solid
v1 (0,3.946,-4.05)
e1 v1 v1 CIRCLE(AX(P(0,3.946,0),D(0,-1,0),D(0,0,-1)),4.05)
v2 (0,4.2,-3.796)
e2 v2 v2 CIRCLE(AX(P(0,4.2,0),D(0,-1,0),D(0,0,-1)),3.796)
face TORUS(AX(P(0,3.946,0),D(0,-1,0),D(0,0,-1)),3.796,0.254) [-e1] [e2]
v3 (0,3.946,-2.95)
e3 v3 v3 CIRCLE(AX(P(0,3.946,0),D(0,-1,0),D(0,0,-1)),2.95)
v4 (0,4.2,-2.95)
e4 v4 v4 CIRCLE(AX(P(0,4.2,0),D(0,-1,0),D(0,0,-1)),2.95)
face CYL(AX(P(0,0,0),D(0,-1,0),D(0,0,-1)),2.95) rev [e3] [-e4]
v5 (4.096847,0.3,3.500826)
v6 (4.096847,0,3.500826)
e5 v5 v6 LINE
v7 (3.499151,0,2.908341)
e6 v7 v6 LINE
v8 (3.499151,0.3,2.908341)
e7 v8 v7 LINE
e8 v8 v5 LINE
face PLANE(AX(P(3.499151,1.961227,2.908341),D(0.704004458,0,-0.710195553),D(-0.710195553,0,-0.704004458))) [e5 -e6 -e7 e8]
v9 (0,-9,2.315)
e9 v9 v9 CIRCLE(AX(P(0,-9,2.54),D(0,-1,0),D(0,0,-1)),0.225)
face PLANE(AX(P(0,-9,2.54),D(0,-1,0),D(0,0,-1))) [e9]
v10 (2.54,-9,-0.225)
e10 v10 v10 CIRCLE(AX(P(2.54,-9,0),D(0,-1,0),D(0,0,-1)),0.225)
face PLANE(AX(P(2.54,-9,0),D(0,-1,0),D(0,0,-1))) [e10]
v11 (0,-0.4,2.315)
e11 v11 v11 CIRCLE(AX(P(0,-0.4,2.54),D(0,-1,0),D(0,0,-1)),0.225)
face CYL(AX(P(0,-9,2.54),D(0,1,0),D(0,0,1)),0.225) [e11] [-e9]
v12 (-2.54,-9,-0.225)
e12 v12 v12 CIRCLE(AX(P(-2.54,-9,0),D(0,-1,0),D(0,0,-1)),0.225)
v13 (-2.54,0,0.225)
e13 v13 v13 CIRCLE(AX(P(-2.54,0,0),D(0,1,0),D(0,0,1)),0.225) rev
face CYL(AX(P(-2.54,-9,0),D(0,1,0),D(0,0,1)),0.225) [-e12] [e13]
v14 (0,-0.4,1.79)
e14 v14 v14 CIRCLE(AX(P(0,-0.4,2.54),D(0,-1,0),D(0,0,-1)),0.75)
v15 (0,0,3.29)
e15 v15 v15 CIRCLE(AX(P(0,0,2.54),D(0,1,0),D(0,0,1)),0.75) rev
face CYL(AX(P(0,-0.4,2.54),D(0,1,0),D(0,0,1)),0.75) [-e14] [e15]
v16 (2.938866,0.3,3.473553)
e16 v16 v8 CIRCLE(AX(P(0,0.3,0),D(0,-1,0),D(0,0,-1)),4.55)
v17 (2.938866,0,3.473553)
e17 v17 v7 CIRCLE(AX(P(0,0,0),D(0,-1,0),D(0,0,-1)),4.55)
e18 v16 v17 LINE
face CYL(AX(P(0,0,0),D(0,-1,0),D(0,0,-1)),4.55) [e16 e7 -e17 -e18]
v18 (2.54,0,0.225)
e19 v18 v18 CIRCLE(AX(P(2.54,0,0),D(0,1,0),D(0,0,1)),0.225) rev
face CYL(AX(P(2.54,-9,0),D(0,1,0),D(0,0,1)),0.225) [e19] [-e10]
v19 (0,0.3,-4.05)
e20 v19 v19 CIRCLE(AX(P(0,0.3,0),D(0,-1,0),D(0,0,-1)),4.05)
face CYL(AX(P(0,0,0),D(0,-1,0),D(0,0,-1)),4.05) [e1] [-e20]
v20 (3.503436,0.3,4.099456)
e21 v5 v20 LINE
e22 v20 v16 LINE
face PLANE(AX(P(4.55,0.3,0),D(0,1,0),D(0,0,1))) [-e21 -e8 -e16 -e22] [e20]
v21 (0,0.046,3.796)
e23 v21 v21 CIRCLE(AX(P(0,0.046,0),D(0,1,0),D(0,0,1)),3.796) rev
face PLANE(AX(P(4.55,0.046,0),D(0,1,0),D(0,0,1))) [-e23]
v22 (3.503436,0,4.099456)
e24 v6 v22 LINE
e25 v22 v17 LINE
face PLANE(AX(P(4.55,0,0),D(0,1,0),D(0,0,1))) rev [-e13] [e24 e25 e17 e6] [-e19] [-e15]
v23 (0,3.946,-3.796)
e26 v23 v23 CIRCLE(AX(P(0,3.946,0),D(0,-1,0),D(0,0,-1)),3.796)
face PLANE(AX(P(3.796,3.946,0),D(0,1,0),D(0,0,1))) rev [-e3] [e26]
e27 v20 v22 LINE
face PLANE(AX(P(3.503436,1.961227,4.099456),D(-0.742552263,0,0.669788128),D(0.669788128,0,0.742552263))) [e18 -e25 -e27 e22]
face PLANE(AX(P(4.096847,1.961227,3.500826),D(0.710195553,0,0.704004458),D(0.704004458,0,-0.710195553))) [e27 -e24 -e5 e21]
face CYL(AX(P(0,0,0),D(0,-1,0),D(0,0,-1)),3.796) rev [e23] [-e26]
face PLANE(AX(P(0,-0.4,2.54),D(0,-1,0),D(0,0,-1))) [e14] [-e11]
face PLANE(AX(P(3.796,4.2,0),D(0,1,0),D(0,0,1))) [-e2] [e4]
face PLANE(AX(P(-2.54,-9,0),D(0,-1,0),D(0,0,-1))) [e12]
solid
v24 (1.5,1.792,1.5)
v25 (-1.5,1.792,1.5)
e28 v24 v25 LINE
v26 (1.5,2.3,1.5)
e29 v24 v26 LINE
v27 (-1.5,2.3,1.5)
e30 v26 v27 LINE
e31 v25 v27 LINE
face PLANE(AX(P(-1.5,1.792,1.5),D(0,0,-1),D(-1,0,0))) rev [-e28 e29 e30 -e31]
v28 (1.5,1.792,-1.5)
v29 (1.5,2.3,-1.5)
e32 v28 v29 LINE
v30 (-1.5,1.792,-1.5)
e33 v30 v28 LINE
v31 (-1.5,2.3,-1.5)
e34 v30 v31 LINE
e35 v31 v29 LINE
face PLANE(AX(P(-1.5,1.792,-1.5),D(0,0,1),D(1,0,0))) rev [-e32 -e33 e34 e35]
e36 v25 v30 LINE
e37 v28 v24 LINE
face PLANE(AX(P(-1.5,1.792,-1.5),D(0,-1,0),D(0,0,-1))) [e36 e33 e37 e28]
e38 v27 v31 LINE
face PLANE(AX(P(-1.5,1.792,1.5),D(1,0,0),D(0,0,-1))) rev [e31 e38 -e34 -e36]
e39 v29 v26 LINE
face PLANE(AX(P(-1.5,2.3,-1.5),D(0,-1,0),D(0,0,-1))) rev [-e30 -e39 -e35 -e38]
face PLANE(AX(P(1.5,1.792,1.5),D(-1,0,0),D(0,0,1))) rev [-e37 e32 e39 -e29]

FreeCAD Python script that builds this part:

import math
import FreeCAD as App
import Part
import Sketcher

V = App.Vector
Q = App.Units.Quantity

doc = App.newDocument("Part")
body = doc.addObject("PartDesign::Body", "Body")

# Sketch on XY plane
sketch1 = body.newObject("Sketcher::SketchObject", "Sketch")
sketch1.AttachmentSupport = (doc.getObject("XY_Plane"), [""])
sketch1.MapMode = "FlatFace"
sketch1.addGeometry([
    Part.LineSegment(V(4.55, 0, 0), V(4.55, 0.3, 0)),  # 0
    Part.LineSegment(V(4.55, 0.3, 0), V(4.05, 0.3, 0)),  # 1
    Part.LineSegment(V(4.05, 0.3, 0), V(4.05, 3.946, 0)),  # 2
    Part.ArcOfCircle(Part.Circle(V(3.796, 3.946, 0), V(0, 0, 1), 0.254), math.radians(0), math.radians(90)),  # 3
    Part.LineSegment(V(3.796, 4.2, 0), V(2.95, 4.2, 0)),  # 4
    Part.LineSegment(V(2.95, 4.2, 0), V(2.95, 3.946, 0)),  # 5
    Part.LineSegment(V(2.95, 3.946, 0), V(3.796, 3.946, 0)),  # 6
    Part.LineSegment(V(3.796, 3.946, 0), V(3.796, 0.046, 0)),  # 7
    Part.LineSegment(V(3.796, 0.046, 0), V(4.296, 0.046, 0)),  # 8
    Part.LineSegment(V(4.296, 0.046, 0), V(4.296, 0, 0)),  # 9
    Part.LineSegment(V(4.296, 0, 0), V(4.55, 0, 0)),  # 10
], False)
sketch1.addConstraint([
    Sketcher.Constraint("Coincident", 0, 2, 1, 1),
    Sketcher.Constraint("Coincident", 1, 2, 2, 1),
    Sketcher.Constraint("Tangent", 2, 2, 3, 1),
    Sketcher.Constraint("Tangent", 3, 2, 4, 1),
    Sketcher.Constraint("Coincident", 4, 2, 5, 1),
    Sketcher.Constraint("Coincident", 5, 2, 6, 1),
    Sketcher.Constraint("Coincident", 6, 2, 7, 1),
    Sketcher.Constraint("Coincident", 7, 2, 8, 1),
    Sketcher.Constraint("Coincident", 8, 2, 9, 1),
    Sketcher.Constraint("Coincident", 9, 2, 10, 1),
    Sketcher.Constraint("Coincident", 10, 2, 0, 1),
    Sketcher.Constraint("Vertical", 0),
    Sketcher.Constraint("Horizontal", 1),
    Sketcher.Constraint("Vertical", 2),
    Sketcher.Constraint("Horizontal", 4),
    Sketcher.Constraint("Vertical", 5),
    Sketcher.Constraint("Horizontal", 6),
    Sketcher.Constraint("Vertical", 7),
    Sketcher.Constraint("Horizontal", 8),
    Sketcher.Constraint("Vertical", 9),
    Sketcher.Constraint("Horizontal", 10),
    Sketcher.Constraint("Coincident", 6, 2, 3, 3),
    Sketcher.Constraint("PointOnObject", 9, 2, -1),
    Sketcher.Constraint("Equal", 1, 8),
    Sketcher.Constraint("DistanceX", 1, 2, 1, 1, Q("0.5 mm")),
    Sketcher.Constraint("DistanceY", 0, 1, 0, 2, Q("0.3 mm")),
    Sketcher.Constraint("DistanceY", 7, 2, 7, 1, Q("3.9 mm")),
    Sketcher.Constraint("Radius", 3, Q("0.254 mm")),
    Sketcher.Constraint("DistanceY", -1, 1, 3, 2, Q("4.2 mm")),
    Sketcher.Constraint("DistanceX", 4, 2, 2, 2, Q("1.1 mm")),
    Sketcher.Constraint("DistanceX", -1, 1, 0, 2, Q("4.55 mm")),
])
revolution = body.newObject("PartDesign::Revolution", "Revolution")
revolution.Profile = sketch1
revolution.ReferenceAxis = (sketch1, ["V_Axis"])
revolution.Angle = 360

# Sketch on XZ plane
sketch2 = body.newObject("Sketcher::SketchObject", "Sketch001")
sketch2.AttachmentSupport = (doc.getObject("XZ_Plane"), [""])
sketch2.MapMode = "FlatFace"
sketch2.addGeometry(Part.Circle(V(0, 0, 0), V(0, 0, 1), 4.5), False)
sketch2.addConstraint([
    Sketcher.Constraint("Coincident", 0, 3, -1, 1),
    Sketcher.Constraint("Diameter", 0, Q("9.1 mm")),
])
pad1 = body.newObject("PartDesign::Pad", "Pad")
pad1.Profile = sketch2
pad1.Length = 0.046
pad1.Reversed = True

# Sketch on XZ plane
sketch3 = body.newObject("Sketcher::SketchObject", "Sketch002")
sketch3.AttachmentSupport = (doc.getObject("XZ_Plane"), [""])
sketch3.MapMode = "FlatFace"
sketch3.addGeometry([
    Part.LineSegment(V(2.9, 3.5, 0), V(3.5, 2.9, 0)),
    Part.LineSegment(V(3.5, 2.9, 0), V(4.1, 3.5, 0)),
    Part.LineSegment(V(4.1, 3.5, 0), V(3.5, 4.1, 0)),
    Part.LineSegment(V(3.5, 4.1, 0), V(2.9, 3.5, 0)),
], False)
sketch3.addConstraint([
    Sketcher.Constraint("Coincident", 0, 2, 1, 1),
    Sketcher.Constraint("Coincident", 1, 2, 2, 1),
    Sketcher.Constraint("Coincident", 2, 2, 3, 1),
    Sketcher.Constraint("Coincident", 3, 2, 0, 1),
    Sketcher.Constraint("Perpendicular", 0, 1),
    Sketcher.Constraint("Perpendicular", 1, 2),
    Sketcher.Constraint("Equal", 2, 3),
    Sketcher.Constraint("Distance", 2, Q("0.842908 mm")),
    Sketcher.Constraint("DistanceX", -1, 1, 0, 2, Q("3.499151 mm")),
    Sketcher.Constraint("DistanceY", -1, 1, 0, 2, Q("2.908341 mm")),
    Sketcher.Constraint("DistanceX", 2, 2, 1, 2, Q("0.593411 mm")),
    Sketcher.Constraint("DistanceY", 0, 2, 3, 2, Q("0.565212 mm")),
])
pad2 = body.newObject("PartDesign::Pad", "Pad001")
pad2.Profile = sketch3
pad2.Length = 0.3
pad2.Reversed = True

# Sketch on XZ plane
sketch4 = body.newObject("Sketcher::SketchObject", "Sketch003")
sketch4.AttachmentSupport = (doc.getObject("XZ_Plane"), [""])
sketch4.MapMode = "FlatFace"
sketch4.addGeometry([
    Part.Circle(V(-2.54, 0, 0), V(0, 0, 1), 0.23),
    Part.Circle(V(2.54, 0, 0), V(0, 0, 1), 0.23),
    Part.Circle(V(0, 2.54, 0), V(0, 0, 1), 0.23),
], False)
sketch4.addConstraint([
    Sketcher.Constraint("Equal", 0, 1),
    Sketcher.Constraint("Equal", 1, 2),
    Sketcher.Constraint("Symmetric", 0, 3, 1, 3, -1, 1),
    Sketcher.Constraint("PointOnObject", 0, 3, -1),
    Sketcher.Constraint("PointOnObject", 2, 3, -2),
    Sketcher.Constraint("Diameter", 0, Q("0.45 mm")),
    Sketcher.Constraint("DistanceX", 0, 3, -1, 1, Q("2.54 mm")),
    Sketcher.Constraint("DistanceY", -1, 1, 2, 3, Q("2.54 mm")),
])
pad3 = body.newObject("PartDesign::Pad", "Pad002")
pad3.Profile = sketch4
pad3.Length = 9

# Sketch on XZ plane
sketch5 = body.newObject("Sketcher::SketchObject", "Sketch004")
sketch5.AttachmentSupport = (doc.getObject("XZ_Plane"), [""])
sketch5.MapMode = "FlatFace"
sketch5.addGeometry(Part.Circle(V(0, 2.5, 0), V(0, 0, 1), 0.8), False)
sketch5.addConstraint([
    Sketcher.Constraint("PointOnObject", 0, 3, -2),
    Sketcher.Constraint("Diameter", 0, Q("1.5 mm")),
    Sketcher.Constraint("DistanceY", -1, 1, 0, 3, Q("2.54 mm")),
])
pad4 = body.newObject("PartDesign::Pad", "Pad003")
pad4.Profile = sketch5
pad4.Length = 0.4
body2 = doc.addObject("PartDesign::Body", "Body001")

# Sketch on XZ plane
sketch6 = body2.newObject("Sketcher::SketchObject", "Sketch005")
sketch6.AttachmentSupport = (doc.getObject("XZ_Plane001"), [""])
sketch6.MapMode = "FlatFace"
sketch6.AttachmentOffset = App.Placement(V(0, 0, -2.3), App.Rotation())
sketch6.addGeometry([
    Part.LineSegment(V(-1.5, 1.5, 0), V(-1.5, -1.5, 0)),
    Part.LineSegment(V(-1.5, -1.5, 0), V(1.5, -1.5, 0)),
    Part.LineSegment(V(1.5, -1.5, 0), V(1.5, 1.5, 0)),
    Part.LineSegment(V(1.5, 1.5, 0), V(-1.5, 1.5, 0)),
], False)
sketch6.addConstraint([
    Sketcher.Constraint("Coincident", 0, 2, 1, 1),
    Sketcher.Constraint("Coincident", 1, 2, 2, 1),
    Sketcher.Constraint("Coincident", 2, 2, 3, 1),
    Sketcher.Constraint("Coincident", 3, 2, 0, 1),
    Sketcher.Constraint("Vertical", 0),
    Sketcher.Constraint("Horizontal", 1),
    Sketcher.Constraint("Vertical", 2),
    Sketcher.Constraint("Horizontal", 3),
    Sketcher.Constraint("Symmetric", 0, 2, 2, 2, -1, 1),
    Sketcher.Constraint("Equal", 3, 0),
    Sketcher.Constraint("DistanceX", 1, 1, 1, 2, Q("3 mm")),
])
pad5 = body2.newObject("PartDesign::Pad", "Pad004")
pad5.Profile = sketch6
pad5.Length = 0.508

doc.recompute()
